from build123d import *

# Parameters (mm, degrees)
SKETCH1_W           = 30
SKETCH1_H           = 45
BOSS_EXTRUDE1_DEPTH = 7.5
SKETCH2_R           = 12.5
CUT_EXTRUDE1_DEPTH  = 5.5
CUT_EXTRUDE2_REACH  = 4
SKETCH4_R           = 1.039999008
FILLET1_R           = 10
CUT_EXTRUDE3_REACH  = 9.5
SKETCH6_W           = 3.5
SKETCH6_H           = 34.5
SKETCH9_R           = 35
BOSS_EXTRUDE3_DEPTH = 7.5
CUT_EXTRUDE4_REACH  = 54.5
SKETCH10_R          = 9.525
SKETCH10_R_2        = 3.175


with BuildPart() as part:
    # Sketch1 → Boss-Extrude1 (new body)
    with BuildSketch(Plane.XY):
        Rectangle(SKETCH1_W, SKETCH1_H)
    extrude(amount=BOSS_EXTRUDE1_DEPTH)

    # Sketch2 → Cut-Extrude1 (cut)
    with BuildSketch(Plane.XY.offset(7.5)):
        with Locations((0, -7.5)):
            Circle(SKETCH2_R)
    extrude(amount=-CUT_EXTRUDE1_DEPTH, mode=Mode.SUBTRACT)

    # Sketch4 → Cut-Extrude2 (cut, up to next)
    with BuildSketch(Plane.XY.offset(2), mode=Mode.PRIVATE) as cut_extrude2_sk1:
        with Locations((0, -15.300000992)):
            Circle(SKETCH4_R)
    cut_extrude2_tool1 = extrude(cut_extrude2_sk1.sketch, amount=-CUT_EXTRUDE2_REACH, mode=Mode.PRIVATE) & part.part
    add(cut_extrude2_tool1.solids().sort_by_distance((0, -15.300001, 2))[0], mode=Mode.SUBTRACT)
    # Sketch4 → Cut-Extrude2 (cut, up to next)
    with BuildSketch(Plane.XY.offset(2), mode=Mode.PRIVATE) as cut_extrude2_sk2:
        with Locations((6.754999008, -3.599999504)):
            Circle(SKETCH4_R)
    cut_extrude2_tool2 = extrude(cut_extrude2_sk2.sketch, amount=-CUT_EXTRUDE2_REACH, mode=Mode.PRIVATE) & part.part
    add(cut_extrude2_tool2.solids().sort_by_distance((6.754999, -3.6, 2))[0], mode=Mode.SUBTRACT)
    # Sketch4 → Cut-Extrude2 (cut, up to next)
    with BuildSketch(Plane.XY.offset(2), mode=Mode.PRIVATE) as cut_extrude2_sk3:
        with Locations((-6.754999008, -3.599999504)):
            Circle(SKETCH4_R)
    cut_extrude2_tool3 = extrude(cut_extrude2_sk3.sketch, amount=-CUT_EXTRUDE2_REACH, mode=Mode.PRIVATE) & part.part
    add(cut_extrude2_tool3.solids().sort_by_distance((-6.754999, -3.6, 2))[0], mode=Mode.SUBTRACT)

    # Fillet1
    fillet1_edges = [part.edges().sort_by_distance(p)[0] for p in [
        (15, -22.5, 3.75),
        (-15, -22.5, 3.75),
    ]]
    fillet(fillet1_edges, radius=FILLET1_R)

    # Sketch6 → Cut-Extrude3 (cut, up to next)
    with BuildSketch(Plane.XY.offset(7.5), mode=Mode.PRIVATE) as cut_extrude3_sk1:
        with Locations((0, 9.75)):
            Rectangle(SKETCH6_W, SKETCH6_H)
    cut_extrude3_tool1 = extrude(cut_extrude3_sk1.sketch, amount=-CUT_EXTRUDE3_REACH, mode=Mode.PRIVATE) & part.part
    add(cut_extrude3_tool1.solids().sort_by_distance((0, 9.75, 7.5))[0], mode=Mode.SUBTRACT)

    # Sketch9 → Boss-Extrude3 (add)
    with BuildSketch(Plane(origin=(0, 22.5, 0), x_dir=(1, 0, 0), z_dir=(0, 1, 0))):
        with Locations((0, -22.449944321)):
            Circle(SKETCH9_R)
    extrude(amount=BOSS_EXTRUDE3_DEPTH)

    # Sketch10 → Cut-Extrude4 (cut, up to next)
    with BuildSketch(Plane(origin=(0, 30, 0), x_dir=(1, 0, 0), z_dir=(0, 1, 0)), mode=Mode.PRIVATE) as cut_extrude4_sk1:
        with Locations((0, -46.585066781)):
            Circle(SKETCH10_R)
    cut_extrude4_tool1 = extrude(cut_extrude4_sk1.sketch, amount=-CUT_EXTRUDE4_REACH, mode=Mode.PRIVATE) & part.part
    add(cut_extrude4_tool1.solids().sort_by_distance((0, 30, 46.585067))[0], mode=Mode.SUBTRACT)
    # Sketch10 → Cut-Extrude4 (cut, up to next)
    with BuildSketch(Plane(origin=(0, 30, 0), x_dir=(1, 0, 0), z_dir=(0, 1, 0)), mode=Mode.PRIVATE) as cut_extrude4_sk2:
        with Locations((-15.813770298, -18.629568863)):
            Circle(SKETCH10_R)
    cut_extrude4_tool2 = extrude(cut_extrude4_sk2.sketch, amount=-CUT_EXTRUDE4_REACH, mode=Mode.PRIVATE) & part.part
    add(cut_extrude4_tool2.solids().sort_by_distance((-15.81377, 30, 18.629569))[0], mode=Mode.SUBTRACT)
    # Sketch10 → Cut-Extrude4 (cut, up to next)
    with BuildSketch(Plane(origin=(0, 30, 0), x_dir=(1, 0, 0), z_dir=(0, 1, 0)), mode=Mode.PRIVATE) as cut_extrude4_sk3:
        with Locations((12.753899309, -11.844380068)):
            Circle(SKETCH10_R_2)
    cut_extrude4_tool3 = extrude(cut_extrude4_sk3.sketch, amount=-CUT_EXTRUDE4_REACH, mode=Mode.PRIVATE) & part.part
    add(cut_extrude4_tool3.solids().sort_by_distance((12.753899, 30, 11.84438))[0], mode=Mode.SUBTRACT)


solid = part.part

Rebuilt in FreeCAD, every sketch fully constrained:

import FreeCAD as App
import Part
import Sketcher


def edges_at(feature, points):
    """Names of the edges that pass closest to the given points."""
    edges = feature.Shape.Edges
    near = lambda p: min(range(len(edges)), key=lambda i: edges[i].distToShape(Part.Vertex(*p))[0])
    return sorted({f"Edge{near(p) + 1}" for p in points})


def add_polygon(sketch, points):
    """Adds a closed chain of lines whose ends are joined by coincident constraints."""
    first, n = sketch.GeometryCount, len(points)
    for a, b in zip(points, points[1:] + points[:1]):
        sketch.addGeometry(Part.LineSegment(App.Vector(*a, 0), App.Vector(*b, 0)), False)
    for i in range(n):
        sketch.addConstraint(Sketcher.Constraint("Coincident", first + i, 2, first + (i + 1) % n, 1))

doc = App.newDocument("Part")
body = doc.addObject("PartDesign::Body", "Body")

# Sketch on XY plane
sketch1 = body.newObject("Sketcher::SketchObject", "Sketch")
sketch1.AttachmentSupport = (doc.getObject("XY_Plane"), [""])
sketch1.MapMode = "FlatFace"
add_polygon(sketch1, [(-15, 22.5), (-15, -22.5), (15, -22.5), (15, 22.5)])  # lines 0-3
sketch1.addConstraint(Sketcher.Constraint("Vertical", 0))
sketch1.addConstraint(Sketcher.Constraint("Horizontal", 1))
sketch1.addConstraint(Sketcher.Constraint("Vertical", 2))
sketch1.addConstraint(Sketcher.Constraint("Horizontal", 3))
sketch1.addConstraint(Sketcher.Constraint("Symmetric", 0, 2, 2, 2, -1, 1))
sketch1.addConstraint(Sketcher.Constraint("DistanceX", 1, 1, 1, 2, 30.0))
sketch1.addConstraint(Sketcher.Constraint("DistanceY", 0, 2, 0, 1, 45.0))
pad1 = body.newObject("PartDesign::Pad", "Pad")
pad1.Profile = sketch1
pad1.Length = 7.5

# Sketch on XY plane
sketch2 = body.newObject("Sketcher::SketchObject", "Sketch001")
sketch2.AttachmentSupport = (doc.getObject("XY_Plane"), [""])
sketch2.MapMode = "FlatFace"
sketch2.AttachmentOffset = App.Placement(App.Vector(0, 0, 7.5), App.Rotation())
sketch2.addGeometry(Part.Circle(App.Vector(0, -7.5, 0), App.Vector(0, 0, 1), 12.5), False)
sketch2.addConstraint(Sketcher.Constraint("PointOnObject", 0, 3, -2))
sketch2.addConstraint(Sketcher.Constraint("Diameter", 0, 25.0))
sketch2.addConstraint(Sketcher.Constraint("DistanceY", 0, 3, -1, 1, 7.5))
pocket1 = body.newObject("PartDesign::Pocket", "Pocket")
pocket1.Profile = sketch2
pocket1.Length = 5.5

# Sketch on XY plane
sketch3 = body.newObject("Sketcher::SketchObject", "Sketch002")
sketch3.AttachmentSupport = (doc.getObject("XY_Plane"), [""])
sketch3.MapMode = "FlatFace"
sketch3.AttachmentOffset = App.Placement(App.Vector(0, 0, 2), App.Rotation())
sketch3.addGeometry(Part.Circle(App.Vector(0, -15.300001, 0), App.Vector(0, 0, 1), 1.039999), False)
sketch3.addConstraint(Sketcher.Constraint("PointOnObject", 0, 3, -2))
sketch3.addConstraint(Sketcher.Constraint("Diameter", 0, 2.079998))
sketch3.addConstraint(Sketcher.Constraint("DistanceY", 0, 3, -1, 1, 15.300001))
pocket2 = body.newObject("PartDesign::Pocket", "Pocket001")
pocket2.Profile = sketch3
pocket2.Type = "UpToFirst"

# Sketch on XY plane
sketch4 = body.newObject("Sketcher::SketchObject", "Sketch003")
sketch4.AttachmentSupport = (doc.getObject("XY_Plane"), [""])
sketch4.MapMode = "FlatFace"
sketch4.AttachmentOffset = App.Placement(App.Vector(0, 0, 2), App.Rotation())
sketch4.addGeometry(Part.Circle(App.Vector(6.754999, -3.6, 0), App.Vector(0, 0, 1), 1.039999), False)
sketch4.addConstraint(Sketcher.Constraint("Diameter", 0, 2.079998))
sketch4.addConstraint(Sketcher.Constraint("DistanceY", 0, 3, -1, 1, 3.6))
sketch4.addConstraint(Sketcher.Constraint("DistanceX", -1, 1, 0, 3, 6.754999))
pocket3 = body.newObject("PartDesign::Pocket", "Pocket002")
pocket3.Profile = sketch4
pocket3.Type = "UpToFirst"

# Sketch on XY plane
sketch5 = body.newObject("Sketcher::SketchObject", "Sketch004")
sketch5.AttachmentSupport = (doc.getObject("XY_Plane"), [""])
sketch5.MapMode = "FlatFace"
sketch5.AttachmentOffset = App.Placement(App.Vector(0, 0, 2), App.Rotation())
sketch5.addGeometry(Part.Circle(App.Vector(-6.754999, -3.6, 0), App.Vector(0, 0, 1), 1.039999), False)
sketch5.addConstraint(Sketcher.Constraint("Diameter", 0, 2.079998))
sketch5.addConstraint(Sketcher.Constraint("DistanceY", 0, 3, -1, 1, 3.6))
sketch5.addConstraint(Sketcher.Constraint("DistanceX", 0, 3, -1, 1, 6.754999))
pocket4 = body.newObject("PartDesign::Pocket", "Pocket003")
pocket4.Profile = sketch5
pocket4.Type = "UpToFirst"
doc.recompute()

fillet = body.newObject("PartDesign::Fillet", "Fillet")
fillet.Base = (pocket4, edges_at(pocket4, [(15, -22.5, 3.75), (-15, -22.5, 3.75)]))
fillet.Radius = 10

# Sketch on XY plane
sketch6 = body.newObject("Sketcher::SketchObject", "Sketch005")
sketch6.AttachmentSupport = (doc.getObject("XY_Plane"), [""])
sketch6.MapMode = "FlatFace"
sketch6.AttachmentOffset = App.Placement(App.Vector(0, 0, 7.5), App.Rotation())
add_polygon(sketch6, [(-1.75, 27), (-1.75, -7.5), (1.75, -7.5), (1.75, 27)])  # lines 0-3
sketch6.addConstraint(Sketcher.Constraint("Vertical", 0))
sketch6.addConstraint(Sketcher.Constraint("Horizontal", 1))
sketch6.addConstraint(Sketcher.Constraint("Vertical", 2))
sketch6.addConstraint(Sketcher.Constraint("Horizontal", 3))
sketch6.addConstraint(Sketcher.Constraint("DistanceX", 1, 1, 1, 2, 3.5))
sketch6.addConstraint(Sketcher.Constraint("DistanceY", 0, 2, 0, 1, 34.5))
sketch6.addConstraint(Sketcher.Constraint("DistanceY", -1, 1, 2, 2, 27.0))
sketch6.addConstraint(Sketcher.Constraint("DistanceX", 0, 2, -1, 1, 1.75))
pocket5 = body.newObject("PartDesign::Pocket", "Pocket004")
pocket5.Profile = sketch6
pocket5.Type = "UpToFirst"

# Sketch on XZ plane
sketch7 = body.newObject("Sketcher::SketchObject", "Sketch006")
sketch7.AttachmentSupport = (doc.getObject("XZ_Plane"), [""])
sketch7.MapMode = "FlatFace"
sketch7.AttachmentOffset = App.Placement(App.Vector(0, 0, -22.5), App.Rotation())
sketch7.addGeometry(Part.Circle(App.Vector(0, 22.449944, 0), App.Vector(0, 0, 1), 35), False)
sketch7.addConstraint(Sketcher.Constraint("PointOnObject", 0, 3, -2))
sketch7.addConstraint(Sketcher.Constraint("Diameter", 0, 70.0))
sketch7.addConstraint(Sketcher.Constraint("DistanceY", -1, 1, 0, 3, 22.449944))
pad2 = body.newObject("PartDesign::Pad", "Pad001")
pad2.Profile = sketch7
pad2.Length = 7.5
pad2.Reversed = True

# Sketch on XZ plane
sketch8 = body.newObject("Sketcher::SketchObject", "Sketch007")
sketch8.AttachmentSupport = (doc.getObject("XZ_Plane"), [""])
sketch8.MapMode = "FlatFace"
sketch8.AttachmentOffset = App.Placement(App.Vector(0, 0, -30), App.Rotation())
sketch8.addGeometry(Part.Circle(App.Vector(0, 46.585067, 0), App.Vector(0, 0, 1), 9.525), False)
sketch8.addConstraint(Sketcher.Constraint("PointOnObject", 0, 3, -2))
sketch8.addConstraint(Sketcher.Constraint("Diameter", 0, 19.05))
sketch8.addConstraint(Sketcher.Constraint("DistanceY", -1, 1, 0, 3, 46.585067))
pocket6 = body.newObject("PartDesign::Pocket", "Pocket005")
pocket6.Profile = sketch8
pocket6.Type = "UpToFirst"
pocket6.Reversed = True

# Sketch on XZ plane
sketch9 = body.newObject("Sketcher::SketchObject", "Sketch008")
sketch9.AttachmentSupport = (doc.getObject("XZ_Plane"), [""])
sketch9.MapMode = "FlatFace"
sketch9.AttachmentOffset = App.Placement(App.Vector(0, 0, -30), App.Rotation())
sketch9.addGeometry(Part.Circle(App.Vector(-15.81377, 18.629569, 0), App.Vector(0, 0, 1), 9.525), False)
sketch9.addConstraint(Sketcher.Constraint("Diameter", 0, 19.05))
sketch9.addConstraint(Sketcher.Constraint("DistanceX", 0, 3, -1, 1, 15.81377))
sketch9.addConstraint(Sketcher.Constraint("DistanceY", -1, 1, 0, 3, 18.629569))
pocket7 = body.newObject("PartDesign::Pocket", "Pocket006")
pocket7.Profile = sketch9
pocket7.Type = "UpToFirst"
pocket7.Reversed = True

# Sketch on XZ plane
sketch10 = body.newObject("Sketcher::SketchObject", "Sketch009")
sketch10.AttachmentSupport = (doc.getObject("XZ_Plane"), [""])
sketch10.MapMode = "FlatFace"
sketch10.AttachmentOffset = App.Placement(App.Vector(0, 0, -30), App.Rotation())
sketch10.addGeometry(Part.Circle(App.Vector(12.753899, 11.84438, 0), App.Vector(0, 0, 1), 3.175), False)
sketch10.addConstraint(Sketcher.Constraint("Diameter", 0, 6.35))
sketch10.addConstraint(Sketcher.Constraint("DistanceX", -1, 1, 0, 3, 12.753899))
sketch10.addConstraint(Sketcher.Constraint("DistanceY", -1, 1, 0, 3, 11.84438))
pocket8 = body.newObject("PartDesign::Pocket", "Pocket007")
pocket8.Profile = sketch10
pocket8.Type = "UpToFirst"
pocket8.Reversed = True

doc.recompute()
